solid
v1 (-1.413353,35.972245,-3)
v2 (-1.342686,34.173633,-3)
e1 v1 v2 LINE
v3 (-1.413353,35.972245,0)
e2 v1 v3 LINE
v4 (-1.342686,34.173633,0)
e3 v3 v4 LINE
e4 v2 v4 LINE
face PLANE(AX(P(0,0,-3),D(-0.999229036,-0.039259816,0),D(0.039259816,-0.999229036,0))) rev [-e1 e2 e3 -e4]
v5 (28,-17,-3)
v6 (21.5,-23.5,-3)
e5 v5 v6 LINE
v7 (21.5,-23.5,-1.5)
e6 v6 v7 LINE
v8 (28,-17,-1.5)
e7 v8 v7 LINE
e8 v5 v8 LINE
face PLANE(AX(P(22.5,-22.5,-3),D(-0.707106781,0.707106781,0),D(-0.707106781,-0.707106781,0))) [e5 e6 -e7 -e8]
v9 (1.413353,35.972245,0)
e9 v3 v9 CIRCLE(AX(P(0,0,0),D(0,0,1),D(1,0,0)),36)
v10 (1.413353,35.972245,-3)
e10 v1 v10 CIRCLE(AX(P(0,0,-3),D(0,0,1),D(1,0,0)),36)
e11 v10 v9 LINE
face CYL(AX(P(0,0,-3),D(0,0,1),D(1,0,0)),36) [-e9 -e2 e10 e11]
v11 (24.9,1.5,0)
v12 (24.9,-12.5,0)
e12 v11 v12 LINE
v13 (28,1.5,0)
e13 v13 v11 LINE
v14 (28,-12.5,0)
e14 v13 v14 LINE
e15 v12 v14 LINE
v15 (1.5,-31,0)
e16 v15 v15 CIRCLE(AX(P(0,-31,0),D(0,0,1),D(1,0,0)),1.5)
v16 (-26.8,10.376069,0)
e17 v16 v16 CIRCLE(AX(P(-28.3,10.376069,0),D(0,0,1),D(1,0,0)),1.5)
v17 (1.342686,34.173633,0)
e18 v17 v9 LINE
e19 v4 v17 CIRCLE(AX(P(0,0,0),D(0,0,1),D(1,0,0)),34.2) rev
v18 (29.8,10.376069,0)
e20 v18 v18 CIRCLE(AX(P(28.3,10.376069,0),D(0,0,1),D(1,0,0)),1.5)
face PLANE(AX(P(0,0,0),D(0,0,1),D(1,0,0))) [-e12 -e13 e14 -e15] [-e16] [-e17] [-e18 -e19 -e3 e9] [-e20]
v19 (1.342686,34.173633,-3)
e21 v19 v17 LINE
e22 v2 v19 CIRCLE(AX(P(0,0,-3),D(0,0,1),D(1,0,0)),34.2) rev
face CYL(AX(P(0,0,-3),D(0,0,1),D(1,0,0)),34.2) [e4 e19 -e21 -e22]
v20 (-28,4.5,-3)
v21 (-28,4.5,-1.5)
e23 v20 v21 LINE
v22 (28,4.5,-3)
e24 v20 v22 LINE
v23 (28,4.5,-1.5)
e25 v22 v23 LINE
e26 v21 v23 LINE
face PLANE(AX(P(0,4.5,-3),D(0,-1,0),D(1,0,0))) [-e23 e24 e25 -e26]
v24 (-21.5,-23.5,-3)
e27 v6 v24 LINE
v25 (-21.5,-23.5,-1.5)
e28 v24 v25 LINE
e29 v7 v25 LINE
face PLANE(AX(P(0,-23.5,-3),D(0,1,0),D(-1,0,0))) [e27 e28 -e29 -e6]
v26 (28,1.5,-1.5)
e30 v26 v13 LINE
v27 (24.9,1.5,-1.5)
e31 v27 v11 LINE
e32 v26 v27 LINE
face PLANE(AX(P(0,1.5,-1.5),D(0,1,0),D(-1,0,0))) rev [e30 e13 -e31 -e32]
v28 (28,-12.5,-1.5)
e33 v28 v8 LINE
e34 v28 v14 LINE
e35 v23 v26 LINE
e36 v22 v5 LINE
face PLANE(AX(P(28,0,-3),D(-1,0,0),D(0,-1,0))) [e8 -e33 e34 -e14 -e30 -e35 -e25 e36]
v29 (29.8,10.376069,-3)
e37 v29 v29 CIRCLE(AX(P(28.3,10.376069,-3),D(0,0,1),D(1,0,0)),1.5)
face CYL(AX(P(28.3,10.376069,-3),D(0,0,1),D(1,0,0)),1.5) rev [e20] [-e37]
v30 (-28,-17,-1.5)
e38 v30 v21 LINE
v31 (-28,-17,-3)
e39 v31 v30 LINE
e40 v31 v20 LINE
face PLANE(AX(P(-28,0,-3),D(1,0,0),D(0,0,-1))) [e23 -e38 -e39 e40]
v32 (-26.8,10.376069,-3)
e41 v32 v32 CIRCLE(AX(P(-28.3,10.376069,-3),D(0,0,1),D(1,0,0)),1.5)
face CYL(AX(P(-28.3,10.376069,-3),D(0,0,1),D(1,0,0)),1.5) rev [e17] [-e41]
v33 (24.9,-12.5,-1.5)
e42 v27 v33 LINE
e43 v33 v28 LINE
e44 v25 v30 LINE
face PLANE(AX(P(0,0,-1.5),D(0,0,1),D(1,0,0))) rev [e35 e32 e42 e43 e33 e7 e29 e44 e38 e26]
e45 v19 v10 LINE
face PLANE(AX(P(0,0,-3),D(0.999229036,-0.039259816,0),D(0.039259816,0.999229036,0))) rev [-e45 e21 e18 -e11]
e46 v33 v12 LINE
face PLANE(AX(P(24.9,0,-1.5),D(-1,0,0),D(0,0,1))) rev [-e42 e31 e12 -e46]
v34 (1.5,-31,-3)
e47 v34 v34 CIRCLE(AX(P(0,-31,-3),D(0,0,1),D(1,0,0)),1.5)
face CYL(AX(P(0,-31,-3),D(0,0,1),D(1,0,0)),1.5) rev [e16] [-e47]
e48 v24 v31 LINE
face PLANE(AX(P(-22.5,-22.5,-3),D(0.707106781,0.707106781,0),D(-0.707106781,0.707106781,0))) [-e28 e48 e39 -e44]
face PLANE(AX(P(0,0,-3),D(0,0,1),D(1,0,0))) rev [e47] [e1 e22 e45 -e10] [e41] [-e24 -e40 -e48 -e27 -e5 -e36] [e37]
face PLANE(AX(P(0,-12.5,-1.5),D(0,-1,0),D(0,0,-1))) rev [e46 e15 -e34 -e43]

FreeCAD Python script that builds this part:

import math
import FreeCAD as App
import Part
import Sketcher
from FreeCAD import Vector
Q = App.Units.Quantity

doc = App.newDocument("Part")
params = doc.addObject("Spreadsheet::Sheet", "Params")
for row, (alias, value) in enumerate([
    ("sketch1_diameter", "3 mm"),
    ("sketch1_radius", "36 mm"),
    ("sketch1_radius2", "34.199999 mm"),
    ("sketch1_width", "56 mm"),
    ("sketch1_width2", "43 mm"),
    ("pad1_length", "3 mm"),
    ("sketch2_width", "56 mm"),
    ("sketch2_width2", "43 mm"),
    ("sketch2_height", "14 mm"),
    ("sketch2_height2", "3 mm"),
    ("sketch2_width3", "3.1 mm"),
    ("pad2_length", "1.5 mm"),
], start=1):
    params.set(f"A{row}", alias)
    params.set(f"B{row}", "=" + value)
    params.setAlias(f"B{row}", alias)

body = doc.addObject("PartDesign::Body", "Body")

# Sketch on XY plane
sketch1 = body.newObject("Sketcher::SketchObject", "Sketch")
sketch1.AttachmentSupport = (doc.getObject("XY_Plane"), [""])
sketch1.MapMode = "FlatFace"
sketch1.addGeometry(Part.LineSegment(Vector(-1.3, 34.2, 0), Vector(-1.4, 36, 0)), False)
sketch1.addGeometry(Part.ArcOfCircle(Part.Circle(Vector(0, 0, 0), Vector(0, 0, 1), 36), math.radians(92), math.radians(448)), False)
sketch1.addGeometry(Part.LineSegment(Vector(1.4, 36, 0), Vector(1.3, 34.2, 0)), False)
sketch1.addGeometry(Part.ArcOfCircle(Part.Circle(Vector(0, 0, 0), Vector(0, 0, 1), 34.2), math.radians(87.75), math.radians(92.25)), False)
sketch1.addGeometry(Part.Circle(Vector(0, -31, 0), Vector(0, 0, 1), 1.5), False)
sketch1.addGeometry(Part.Circle(Vector(28.3, 10.4, 0), Vector(0, 0, 1), 1.5), False)
sketch1.addGeometry(Part.LineSegment(Vector(-28, 4.5, 0), Vector(28, 4.5, 0)), False)
sketch1.addGeometry(Part.LineSegment(Vector(28, 4.5, 0), Vector(28, -17, 0)), False)
sketch1.addGeometry(Part.LineSegment(Vector(28, -17, 0), Vector(21.5, -23.5, 0)), False)
sketch1.addGeometry(Part.LineSegment(Vector(21.5, -23.5, 0), Vector(-21.5, -23.5, 0)), False)
sketch1.addGeometry(Part.LineSegment(Vector(-21.5, -23.5, 0), Vector(-28, -17, 0)), False)
sketch1.addGeometry(Part.LineSegment(Vector(-28, -17, 0), Vector(-28, 4.5, 0)), False)
sketch1.addGeometry(Part.Circle(Vector(-28.3, 10.4, 0), Vector(0, 0, 1), 1.5), False)
sketch1.addConstraint(Sketcher.Constraint("Coincident", 0, 2, 1, 1))
sketch1.addConstraint(Sketcher.Constraint("Coincident", 1, 2, 2, 1))
sketch1.addConstraint(Sketcher.Constraint("Coincident", 2, 2, 3, 1))
sketch1.addConstraint(Sketcher.Constraint("Coincident", 3, 2, 0, 1))
sketch1.addConstraint(Sketcher.Constraint("Coincident", 6, 2, 7, 1))
sketch1.addConstraint(Sketcher.Constraint("Coincident", 7, 2, 8, 1))
sketch1.addConstraint(Sketcher.Constraint("Coincident", 8, 2, 9, 1))
sketch1.addConstraint(Sketcher.Constraint("Coincident", 9, 2, 10, 1))
sketch1.addConstraint(Sketcher.Constraint("Coincident", 10, 2, 11, 1))
sketch1.addConstraint(Sketcher.Constraint("Coincident", 11, 2, 6, 1))
sketch1.addConstraint(Sketcher.Constraint("Horizontal", 6))
sketch1.addConstraint(Sketcher.Constraint("Vertical", 7))
sketch1.addConstraint(Sketcher.Constraint("Horizontal", 9))
sketch1.addConstraint(Sketcher.Constraint("Vertical", 11))
sketch1.addConstraint(Sketcher.Constraint("Coincident", 1, 3, -1, 1))
sketch1.addConstraint(Sketcher.Constraint("Coincident", 3, 3, -1, 1))
sketch1.addConstraint(Sketcher.Constraint("Equal", 4, 5))
sketch1.addConstraint(Sketcher.Constraint("Equal", 5, 12))
sketch1.addConstraint(Sketcher.Constraint("Symmetric", 5, 3, 12, 3, -2))
sketch1.addConstraint(Sketcher.Constraint("Symmetric", 7, 2, 10, 2, -2))
sketch1.addConstraint(Sketcher.Constraint("PointOnObject", 4, 3, -2))
sketch1.addConstraint(Sketcher.Constraint("Perpendicular", 8, 10))
sketch1.addConstraint(Sketcher.Constraint("Horizontal", 0, 2, 1, 2))
sketch1.addConstraint(Sketcher.Constraint("Horizontal", 2, 2, 3, 2))
sketch1.addConstraint(Sketcher.Constraint("Equal", 8, 10))
sketch1.addConstraint(Sketcher.Constraint("Diameter", 4, 3.0))
sketch1.addConstraint(Sketcher.Constraint("Radius", 1, 36.0))
sketch1.addConstraint(Sketcher.Constraint("Radius", 3, 34.199999))
sketch1.addConstraint(Sketcher.Constraint("DistanceX", 6, 1, 6, 2, 56.0))
sketch1.addConstraint(Sketcher.Constraint("DistanceX", 9, 2, 9, 1, 43.0))
sketch1.addConstraint(Sketcher.Constraint("DistanceY", 7, 2, 7, 1, 21.5))
sketch1.addConstraint(Sketcher.Constraint("DistanceY", 4, 3, -1, 1, 31.0))
sketch1.addConstraint(Sketcher.Constraint("DistanceY", 7, 2, -1, 1, 17.0))
sketch1.addConstraint(Sketcher.Constraint("DistanceX", -1, 1, 5, 3, 28.3))
sketch1.addConstraint(Sketcher.Constraint("Angle", 0, Q("92.25 deg")))
sketch1.addConstraint(Sketcher.Constraint("DistanceY", -1, 1, 5, 3, 10.376069))
sketch1.addConstraint(Sketcher.Constraint("DistanceX", 0, 2, 2, 2, 2.756039))
sketch1.setExpression("Constraints[25]", "Params.sketch1_diameter")
sketch1.setExpression("Constraints[26]", "Params.sketch1_radius")
sketch1.setExpression("Constraints[27]", "Params.sketch1_radius2")
sketch1.setExpression("Constraints[28]", "Params.sketch1_width")
sketch1.setExpression("Constraints[29]", "Params.sketch1_width2")
pad1 = body.newObject("PartDesign::Pad", "Pad")
pad1.Profile = sketch1
pad1.setExpression("Length", "Params.pad1_length")
pad1.Reversed = True

# Sketch on XY plane
sketch2 = body.newObject("Sketcher::SketchObject", "Sketch001")
sketch2.AttachmentSupport = (doc.getObject("XY_Plane"), [""])
sketch2.MapMode = "FlatFace"
sketch2.addGeometry(Part.LineSegment(Vector(28, 4.5, 0), Vector(-28, 4.5, 0)), False)
sketch2.addGeometry(Part.LineSegment(Vector(-28, 4.5, 0), Vector(-28, -17, 0)), False)
sketch2.addGeometry(Part.LineSegment(Vector(-28, -17, 0), Vector(-21.5, -23.5, 0)), False)
sketch2.addGeometry(Part.LineSegment(Vector(-21.5, -23.5, 0), Vector(21.5, -23.5, 0)), False)
sketch2.addGeometry(Part.LineSegment(Vector(21.5, -23.5, 0), Vector(28, -17, 0)), False)
sketch2.addGeometry(Part.LineSegment(Vector(28, -17, 0), Vector(28, -12.5, 0)), False)
sketch2.addGeometry(Part.LineSegment(Vector(28, -12.5, 0), Vector(24.9, -12.5, 0)), False)
sketch2.addGeometry(Part.LineSegment(Vector(24.9, -12.5, 0), Vector(24.9, 1.5, 0)), False)
sketch2.addGeometry(Part.LineSegment(Vector(24.9, 1.5, 0), Vector(28, 1.5, 0)), False)
sketch2.addGeometry(Part.LineSegment(Vector(28, 1.5, 0), Vector(28, 4.5, 0)), False)
sketch2.addConstraint(Sketcher.Constraint("Coincident", 0, 2, 1, 1))
sketch2.addConstraint(Sketcher.Constraint("Coincident", 1, 2, 2, 1))
sketch2.addConstraint(Sketcher.Constraint("Coincident", 2, 2, 3, 1))
sketch2.addConstraint(Sketcher.Constraint("Coincident", 3, 2, 4, 1))
sketch2.addConstraint(Sketcher.Constraint("Coincident", 4, 2, 5, 1))
sketch2.addConstraint(Sketcher.Constraint("Coincident", 5, 2, 6, 1))
sketch2.addConstraint(Sketcher.Constraint("Coincident", 6, 2, 7, 1))
sketch2.addConstraint(Sketcher.Constraint("Coincident", 7, 2, 8, 1))
sketch2.addConstraint(Sketcher.Constraint("Coincident", 8, 2, 9, 1))
sketch2.addConstraint(Sketcher.Constraint("Coincident", 9, 2, 0, 1))
sketch2.addConstraint(Sketcher.Constraint("Horizontal", 0))
sketch2.addConstraint(Sketcher.Constraint("Vertical", 1))
sketch2.addConstraint(Sketcher.Constraint("Horizontal", 3))
sketch2.addConstraint(Sketcher.Constraint("Vertical", 5))
sketch2.addConstraint(Sketcher.Constraint("Horizontal", 6))
sketch2.addConstraint(Sketcher.Constraint("Vertical", 7))
sketch2.addConstraint(Sketcher.Constraint("Horizontal", 8))
sketch2.addConstraint(Sketcher.Constraint("Vertical", 9))
sketch2.addConstraint(Sketcher.Constraint("Symmetric", 1, 2, 4, 2, -2))
sketch2.addConstraint(Sketcher.Constraint("Perpendicular", 2, 4))
sketch2.addConstraint(Sketcher.Constraint("Vertical", 5, 2, 8, 2))
sketch2.addConstraint(Sketcher.Constraint("Equal", 2, 4))
sketch2.addConstraint(Sketcher.Constraint("DistanceX", 0, 2, 0, 1, 56.0))
sketch2.addConstraint(Sketcher.Constraint("DistanceX", 3, 1, 3, 2, 43.0))
sketch2.addConstraint(Sketcher.Constraint("DistanceY", 7, 1, 7, 2, 14.0))
sketch2.addConstraint(Sketcher.Constraint("DistanceY", 9, 1, 9, 2, 3.0))
sketch2.addConstraint(Sketcher.Constraint("DistanceX", 6, 2, 6, 1, 3.1))
sketch2.addConstraint(Sketcher.Constraint("DistanceY", 1, 2, 1, 1, 21.5))
sketch2.addConstraint(Sketcher.Constraint("DistanceY", 1, 2, -1, 1, 17.0))
sketch2.setExpression("Constraints[22]", "Params.sketch2_width")
sketch2.setExpression("Constraints[23]", "Params.sketch2_width2")
sketch2.setExpression("Constraints[24]", "Params.sketch2_height")
sketch2.setExpression("Constraints[25]", "Params.sketch2_height2")
sketch2.setExpression("Constraints[26]", "Params.sketch2_width3")
pad2 = body.newObject("PartDesign::Pad", "Pad001")
pad2.Profile = sketch2
pad2.setExpression("Length", "Params.pad2_length")
pad2.Reversed = True

doc.recompute()
